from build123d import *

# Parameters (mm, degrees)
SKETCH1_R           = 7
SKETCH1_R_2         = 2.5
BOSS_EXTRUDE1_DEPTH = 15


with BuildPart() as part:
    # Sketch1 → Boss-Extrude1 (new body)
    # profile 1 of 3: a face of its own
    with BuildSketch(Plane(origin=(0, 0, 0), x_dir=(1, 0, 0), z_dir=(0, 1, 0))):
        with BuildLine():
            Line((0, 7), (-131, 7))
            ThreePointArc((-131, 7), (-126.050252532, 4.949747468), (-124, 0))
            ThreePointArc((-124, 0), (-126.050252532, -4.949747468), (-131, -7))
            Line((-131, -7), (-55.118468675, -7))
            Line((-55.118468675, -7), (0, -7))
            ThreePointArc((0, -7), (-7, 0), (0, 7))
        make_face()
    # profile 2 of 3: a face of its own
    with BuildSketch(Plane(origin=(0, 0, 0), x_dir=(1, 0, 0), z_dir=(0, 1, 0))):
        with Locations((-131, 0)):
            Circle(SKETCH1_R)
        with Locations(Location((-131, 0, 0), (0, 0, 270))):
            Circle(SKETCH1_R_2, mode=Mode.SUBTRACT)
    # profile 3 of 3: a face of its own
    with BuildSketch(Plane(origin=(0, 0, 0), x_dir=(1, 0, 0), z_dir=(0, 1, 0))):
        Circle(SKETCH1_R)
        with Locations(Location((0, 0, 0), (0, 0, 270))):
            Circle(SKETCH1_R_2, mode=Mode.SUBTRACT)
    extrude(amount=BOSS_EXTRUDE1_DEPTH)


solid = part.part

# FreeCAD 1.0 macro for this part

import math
import FreeCAD as App
import Part
import Sketcher
from FreeCAD import Vector
Q = App.Units.Quantity

doc = App.newDocument("Part")
params = doc.addObject("Spreadsheet::Sheet", "Params")
for row, (alias, value) in enumerate([
    ("sketch1_diameter", "5 mm"),
    ("sketch1_radius", "7 mm"),
    ("sketch1_width", "131 mm"),
    ("pad1_length", "15 mm"),
], start=1):
    params.set(f"A{row}", alias)
    params.set(f"B{row}", "=" + value)
    params.setAlias(f"B{row}", alias)

body = doc.addObject("PartDesign::Body", "Body")

# Sketch on XZ plane
sketch1 = body.newObject("Sketcher::SketchObject", "Sketch")
sketch1.AttachmentSupport = (doc.getObject("XZ_Plane"), [""])
sketch1.MapMode = "FlatFace"
sketch1.addGeometry(Part.LineSegment(Vector(0, -7, 0), Vector(-131, -7, 0)), False)
sketch1.addGeometry(Part.ArcOfCircle(Part.Circle(Vector(-131, 0, 0), Vector(0, 0, 1), 7), math.radians(90), math.radians(270)), False)
sketch1.addGeometry(Part.LineSegment(Vector(-131, 7, 0), Vector(0, 7, 0)), False)
sketch1.addGeometry(Part.ArcOfCircle(Part.Circle(Vector(0, 0, 0), Vector(0, 0, 1), 7), math.radians(-90), math.radians(90)), False)
sketch1.addGeometry(Part.Circle(Vector(-131, 0, 0), Vector(0, 0, 1), 2.5), False)
sketch1.addGeometry(Part.Circle(Vector(0, 0, 0), Vector(0, 0, 1), 2.5), False)
sketch1.addConstraint(Sketcher.Constraint("Tangent", 0, 2, 1, 2))
sketch1.addConstraint(Sketcher.Constraint("Tangent", 1, 1, 2, 1))
sketch1.addConstraint(Sketcher.Constraint("Tangent", 2, 2, 3, 2))
sketch1.addConstraint(Sketcher.Constraint("Tangent", 3, 1, 0, 1))
sketch1.addConstraint(Sketcher.Constraint("Horizontal", 0))
sketch1.addConstraint(Sketcher.Constraint("Horizontal", 2))
sketch1.addConstraint(Sketcher.Constraint("Coincident", 3, 3, -1, 1))
sketch1.addConstraint(Sketcher.Constraint("Coincident", 5, 3, -1, 1))
sketch1.addConstraint(Sketcher.Constraint("Coincident", 4, 3, 1, 3))
sketch1.addConstraint(Sketcher.Constraint("Equal", 4, 5))
sketch1.addConstraint(Sketcher.Constraint("Diameter", 4, Q("5 mm")))
sketch1.addConstraint(Sketcher.Constraint("Radius", 1, Q("7 mm")))
sketch1.addConstraint(Sketcher.Constraint("DistanceX", 0, 2, 0, 1, Q("131 mm")))
sketch1.setExpression("Constraints[10]", "Params.sketch1_diameter")
sketch1.setExpression("Constraints[11]", "Params.sketch1_radius")
sketch1.setExpression("Constraints[12]", "Params.sketch1_width")
pad1 = body.newObject("PartDesign::Pad", "Pad")
pad1.Profile = sketch1
pad1.setExpression("Length", "Params.pad1_length")
pad1.Reversed = True

doc.recompute()
